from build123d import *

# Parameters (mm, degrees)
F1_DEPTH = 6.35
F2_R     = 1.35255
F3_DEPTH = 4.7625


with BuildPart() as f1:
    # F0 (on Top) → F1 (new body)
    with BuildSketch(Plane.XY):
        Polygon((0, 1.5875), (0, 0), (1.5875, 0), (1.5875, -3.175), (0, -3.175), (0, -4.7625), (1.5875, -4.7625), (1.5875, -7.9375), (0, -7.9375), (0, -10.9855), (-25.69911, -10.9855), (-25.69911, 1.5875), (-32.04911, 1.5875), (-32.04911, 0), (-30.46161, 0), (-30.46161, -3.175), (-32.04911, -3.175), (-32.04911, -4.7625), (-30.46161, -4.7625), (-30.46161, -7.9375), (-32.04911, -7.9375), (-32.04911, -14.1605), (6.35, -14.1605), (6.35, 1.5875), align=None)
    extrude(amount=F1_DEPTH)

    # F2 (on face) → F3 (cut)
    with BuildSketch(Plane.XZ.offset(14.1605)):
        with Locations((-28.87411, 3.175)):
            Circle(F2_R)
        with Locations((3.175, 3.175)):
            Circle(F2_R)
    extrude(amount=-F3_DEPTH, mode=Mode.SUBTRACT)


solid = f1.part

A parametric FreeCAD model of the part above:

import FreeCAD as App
import Part
import Sketcher

V = App.Vector
Q = App.Units.Quantity

doc = App.newDocument("Part")
body = doc.addObject("PartDesign::Body", "Body")

# Sketch on XY plane
sketch1 = body.newObject("Sketcher::SketchObject", "Sketch")
sketch1.AttachmentSupport = (doc.getObject("XY_Plane"), [""])
sketch1.MapMode = "FlatFace"
sketch1.addGeometry([
    Part.LineSegment(V(0, 1.6, 0), V(0, 0, 0)),  # 0
    Part.LineSegment(V(0, 0, 0), V(1.6, 0, 0)),  # 1
    Part.LineSegment(V(1.6, 0, 0), V(1.6, -3.2, 0)),  # 2
    Part.LineSegment(V(1.6, -3.2, 0), V(0, -3.2, 0)),  # 3
    Part.LineSegment(V(0, -3.2, 0), V(0, -4.8, 0)),  # 4
    Part.LineSegment(V(0, -4.8, 0), V(1.6, -4.8, 0)),  # 5
    Part.LineSegment(V(1.6, -4.8, 0), V(1.6, -7.9, 0)),  # 6
    Part.LineSegment(V(1.6, -7.9, 0), V(0, -7.9, 0)),  # 7
    Part.LineSegment(V(0, -7.9, 0), V(0, -11, 0)),  # 8
    Part.LineSegment(V(0, -11, 0), V(-25.7, -11, 0)),  # 9
    Part.LineSegment(V(-25.7, -11, 0), V(-25.7, 1.6, 0)),  # 10
    Part.LineSegment(V(-25.7, 1.6, 0), V(-32, 1.6, 0)),  # 11
    Part.LineSegment(V(-32, 1.6, 0), V(-32, 0, 0)),  # 12
    Part.LineSegment(V(-32, 0, 0), V(-30.5, 0, 0)),  # 13
    Part.LineSegment(V(-30.5, 0, 0), V(-30.5, -3.2, 0)),  # 14
    Part.LineSegment(V(-30.5, -3.2, 0), V(-32, -3.2, 0)),  # 15
    Part.LineSegment(V(-32, -3.2, 0), V(-32, -4.8, 0)),  # 16
    Part.LineSegment(V(-32, -4.8, 0), V(-30.5, -4.8, 0)),  # 17
    Part.LineSegment(V(-30.5, -4.8, 0), V(-30.5, -7.9, 0)),  # 18
    Part.LineSegment(V(-30.5, -7.9, 0), V(-32, -7.9, 0)),  # 19
    Part.LineSegment(V(-32, -7.9, 0), V(-32, -14.2, 0)),  # 20
    Part.LineSegment(V(-32, -14.2, 0), V(6.3, -14.2, 0)),  # 21
    Part.LineSegment(V(6.3, -14.2, 0), V(6.3, 1.6, 0)),  # 22
    Part.LineSegment(V(6.3, 1.6, 0), V(0, 1.6, 0)),  # 23
], False)
sketch1.addConstraint([
    Sketcher.Constraint("Coincident", 0, 2, 1, 1),
    Sketcher.Constraint("Coincident", 1, 2, 2, 1),
    Sketcher.Constraint("Coincident", 2, 2, 3, 1),
    Sketcher.Constraint("Coincident", 3, 2, 4, 1),
    Sketcher.Constraint("Coincident", 4, 2, 5, 1),
    Sketcher.Constraint("Coincident", 5, 2, 6, 1),
    Sketcher.Constraint("Coincident", 6, 2, 7, 1),
    Sketcher.Constraint("Coincident", 7, 2, 8, 1),
    Sketcher.Constraint("Coincident", 8, 2, 9, 1),
    Sketcher.Constraint("Coincident", 9, 2, 10, 1),
    Sketcher.Constraint("Coincident", 10, 2, 11, 1),
    Sketcher.Constraint("Coincident", 11, 2, 12, 1),
    Sketcher.Constraint("Coincident", 12, 2, 13, 1),
    Sketcher.Constraint("Coincident", 13, 2, 14, 1),
    Sketcher.Constraint("Coincident", 14, 2, 15, 1),
    Sketcher.Constraint("Coincident", 15, 2, 16, 1),
    Sketcher.Constraint("Coincident", 16, 2, 17, 1),
    Sketcher.Constraint("Coincident", 17, 2, 18, 1),
    Sketcher.Constraint("Coincident", 18, 2, 19, 1),
    Sketcher.Constraint("Coincident", 19, 2, 20, 1),
    Sketcher.Constraint("Coincident", 20, 2, 21, 1),
    Sketcher.Constraint("Coincident", 21, 2, 22, 1),
    Sketcher.Constraint("Coincident", 22, 2, 23, 1),
    Sketcher.Constraint("Coincident", 23, 2, 0, 1),
    Sketcher.Constraint("Vertical", 0),
    Sketcher.Constraint("Horizontal", 1),
    Sketcher.Constraint("Vertical", 2),
    Sketcher.Constraint("Horizontal", 3),
    Sketcher.Constraint("Vertical", 4),
    Sketcher.Constraint("Horizontal", 5),
    Sketcher.Constraint("Vertical", 6),
    Sketcher.Constraint("Horizontal", 7),
    Sketcher.Constraint("Vertical", 8),
    Sketcher.Constraint("Horizontal", 9),
    Sketcher.Constraint("Vertical", 10),
    Sketcher.Constraint("Horizontal", 11),
    Sketcher.Constraint("Vertical", 12),
    Sketcher.Constraint("Horizontal", 13),
    Sketcher.Constraint("Vertical", 14),
    Sketcher.Constraint("Horizontal", 15),
    Sketcher.Constraint("Vertical", 16),
    Sketcher.Constraint("Horizontal", 17),
    Sketcher.Constraint("Vertical", 18),
    Sketcher.Constraint("Horizontal", 19),
    Sketcher.Constraint("Vertical", 20),
    Sketcher.Constraint("Horizontal", 21),
    Sketcher.Constraint("Vertical", 22),
    Sketcher.Constraint("Horizontal", 23),
    Sketcher.Constraint("Coincident", 0, 2, -1, 1),
    Sketcher.Constraint("PointOnObject", 3, 2, -2),
    Sketcher.Constraint("PointOnObject", 7, 2, -2),
    Sketcher.Constraint("PointOnObject", 12, 2, -1),
    Sketcher.Constraint("Horizontal", 3, 2, 14, 2),
    Sketcher.Constraint("Horizontal", 5, 2, 16, 2),
    Sketcher.Constraint("Horizontal", 7, 2, 18, 2),
    Sketcher.Constraint("Horizontal", 11, 2, 22, 2),
    Sketcher.Constraint("Vertical", 2, 2, 5, 2),
    Sketcher.Constraint("Vertical", 12, 2, 15, 2),
    Sketcher.Constraint("Vertical", 14, 2, 17, 2),
    Sketcher.Constraint("Vertical", 16, 2, 19, 2),
    Sketcher.Constraint("Equal", 7, 13),
    Sketcher.Constraint("Equal", 11, 23),
    Sketcher.Constraint("Equal", 19, 0),
    Sketcher.Constraint("Equal", 0, 4),
    Sketcher.Constraint("Equal", 2, 6),
    Sketcher.Constraint("DistanceX", 11, 2, 11, 1, Q("0.25 in")),
    Sketcher.Constraint("DistanceY", 8, 2, 8, 1, Q("0.12 in")),
    Sketcher.Constraint("DistanceY", 22, 1, 22, 2, Q("0.62 in")),
    Sketcher.Constraint("DistanceX", 1, 1, 1, 2, Q("0.0625 in")),
    Sketcher.Constraint("DistanceY", 2, 2, 2, 1, Q("0.125 in")),
    Sketcher.Constraint("DistanceX", 9, 2, 9, 1, 25.69911),
])
pad1 = body.newObject("PartDesign::Pad", "Pad")
pad1.Profile = sketch1
pad1.Length = Q("0.25 in")

# Sketch on XZ plane
sketch2 = body.newObject("Sketcher::SketchObject", "Sketch001")
sketch2.AttachmentSupport = (doc.getObject("XZ_Plane"), [""])
sketch2.MapMode = "FlatFace"
sketch2.AttachmentOffset = App.Placement(V(0, 0, 0.5575 * 25.4), App.Rotation())
sketch2.addGeometry([
    Part.Circle(V(-28.9, 3.2, 0), V(0, 0, 1), 1.4),
    Part.Circle(V(3.2, 3.2, 0), V(0, 0, 1), 1.4),
], False)
sketch2.addConstraint([
    Sketcher.Constraint("Equal", 0, 1),
    Sketcher.Constraint("Horizontal", 0, 3, 1, 3),
    Sketcher.Constraint("Diameter", 0, Q("0.1065 in")),
    Sketcher.Constraint("DistanceY", -1, 1, 0, 3, Q("0.125 in")),
    Sketcher.Constraint("DistanceX", -1, 1, 1, 3, Q("0.125 in")),
    Sketcher.Constraint("DistanceX", 0, 3, -1, 1, 28.87411),
])
pocket1 = body.newObject("PartDesign::Pocket", "Pocket")
pocket1.Profile = sketch2
pocket1.Length = Q("0.1875 in")

doc.recompute()
